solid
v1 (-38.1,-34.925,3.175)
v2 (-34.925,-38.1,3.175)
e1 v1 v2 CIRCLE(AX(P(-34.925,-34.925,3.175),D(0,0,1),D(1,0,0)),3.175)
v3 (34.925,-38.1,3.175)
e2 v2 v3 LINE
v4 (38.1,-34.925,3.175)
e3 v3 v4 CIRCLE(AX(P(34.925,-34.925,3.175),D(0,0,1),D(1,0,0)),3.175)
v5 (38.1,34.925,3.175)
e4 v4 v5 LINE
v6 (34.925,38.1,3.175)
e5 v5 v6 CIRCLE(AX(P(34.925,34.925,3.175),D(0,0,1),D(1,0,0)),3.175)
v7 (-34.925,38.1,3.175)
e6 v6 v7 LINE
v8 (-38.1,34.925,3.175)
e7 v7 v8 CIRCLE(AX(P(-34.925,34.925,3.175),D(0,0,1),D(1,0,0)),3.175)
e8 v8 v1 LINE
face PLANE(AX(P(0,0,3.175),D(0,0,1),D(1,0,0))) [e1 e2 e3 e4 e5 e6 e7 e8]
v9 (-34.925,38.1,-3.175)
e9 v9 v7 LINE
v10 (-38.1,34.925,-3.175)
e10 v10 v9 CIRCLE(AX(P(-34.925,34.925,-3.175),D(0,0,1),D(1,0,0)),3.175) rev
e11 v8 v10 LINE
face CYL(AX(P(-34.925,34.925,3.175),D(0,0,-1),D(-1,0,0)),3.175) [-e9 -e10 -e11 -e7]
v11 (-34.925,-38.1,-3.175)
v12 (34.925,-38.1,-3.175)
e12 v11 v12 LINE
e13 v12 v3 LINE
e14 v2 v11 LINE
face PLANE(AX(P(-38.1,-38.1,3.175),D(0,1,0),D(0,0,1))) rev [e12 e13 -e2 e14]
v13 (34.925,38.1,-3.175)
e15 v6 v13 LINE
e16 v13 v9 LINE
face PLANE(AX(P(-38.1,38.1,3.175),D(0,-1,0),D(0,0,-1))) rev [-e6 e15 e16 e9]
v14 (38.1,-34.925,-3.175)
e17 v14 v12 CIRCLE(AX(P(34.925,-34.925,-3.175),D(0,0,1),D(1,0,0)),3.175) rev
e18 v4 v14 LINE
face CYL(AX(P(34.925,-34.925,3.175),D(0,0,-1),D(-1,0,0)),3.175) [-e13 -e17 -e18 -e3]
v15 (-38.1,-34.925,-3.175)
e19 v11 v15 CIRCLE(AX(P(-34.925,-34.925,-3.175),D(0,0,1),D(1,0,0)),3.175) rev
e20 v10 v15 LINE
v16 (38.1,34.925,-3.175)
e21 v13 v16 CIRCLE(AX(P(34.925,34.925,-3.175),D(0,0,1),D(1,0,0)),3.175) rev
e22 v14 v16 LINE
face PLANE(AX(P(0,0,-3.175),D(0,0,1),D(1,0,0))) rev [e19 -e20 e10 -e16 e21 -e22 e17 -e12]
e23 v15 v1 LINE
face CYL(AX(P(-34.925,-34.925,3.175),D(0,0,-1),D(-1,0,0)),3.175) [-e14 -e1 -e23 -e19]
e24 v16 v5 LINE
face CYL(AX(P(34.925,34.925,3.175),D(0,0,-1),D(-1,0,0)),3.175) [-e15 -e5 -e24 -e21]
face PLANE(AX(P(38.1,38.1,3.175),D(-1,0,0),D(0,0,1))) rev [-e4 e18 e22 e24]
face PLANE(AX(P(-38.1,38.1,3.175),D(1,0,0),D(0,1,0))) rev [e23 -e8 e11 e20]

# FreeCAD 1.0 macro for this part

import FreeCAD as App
import Part
import Sketcher
Q = App.Units.Quantity


def edges_at(feature, points):
    """Names of the edges that pass closest to the given points."""
    edges = feature.Shape.Edges
    near = lambda p: min(range(len(edges)), key=lambda i: edges[i].distToShape(Part.Vertex(*p))[0])
    return sorted({f"Edge{near(p) + 1}" for p in points})


def add_polygon(sketch, points):
    """Adds a closed chain of lines whose ends are joined by coincident constraints."""
    first, n = sketch.GeometryCount, len(points)
    for a, b in zip(points, points[1:] + points[:1]):
        sketch.addGeometry(Part.LineSegment(App.Vector(*a, 0), App.Vector(*b, 0)), False)
    for i in range(n):
        sketch.addConstraint(Sketcher.Constraint("Coincident", first + i, 2, first + (i + 1) % n, 1))

doc = App.newDocument("Part")
params = doc.addObject("Spreadsheet::Sheet", "Params")
for row, (alias, value) in enumerate([
    ("sketch1_width", "3 in"),
    ("pad1_length", "0.25 in"),
    ("fillet_radius", "0.125 in"),
], start=1):
    params.set(f"A{row}", alias)
    params.set(f"B{row}", "=" + value)
    params.setAlias(f"B{row}", alias)

body = doc.addObject("PartDesign::Body", "Body")

# Sketch on XY plane
sketch1 = body.newObject("Sketcher::SketchObject", "Sketch")
sketch1.AttachmentSupport = (doc.getObject("XY_Plane"), [""])
sketch1.MapMode = "FlatFace"
add_polygon(sketch1, [(-38, 38), (-38, -38), (38, -38), (38, 38)])  # lines 0-3
sketch1.addConstraint([
    Sketcher.Constraint("Vertical", 0),
    Sketcher.Constraint("Horizontal", 1),
    Sketcher.Constraint("Vertical", 2),
    Sketcher.Constraint("Horizontal", 3),
    Sketcher.Constraint("Symmetric", 0, 2, 2, 2, -1, 1),
    Sketcher.Constraint("Equal", 3, 0),
    Sketcher.Constraint("DistanceX", 1, 1, 1, 2, Q("3 in")),
])
sketch1.setExpression("Constraints[10]", "Params.sketch1_width")
pad1 = body.newObject("PartDesign::Pad", "Pad")
pad1.Profile = sketch1
pad1.setExpression("Length", "Params.pad1_length")
pad1.Midplane = True
doc.recompute()

fillet = body.newObject("PartDesign::Fillet", "Fillet")
fillet.Base = (pad1, edges_at(pad1, [
    (38.1, -38.1, 0),
    (-38.1, -38.1, 0),
    (-38.1, 38.1, 0),
    (38.1, 38.1, 0),
]))
fillet.setExpression("Radius", "Params.fillet_radius")

doc.recompute()
